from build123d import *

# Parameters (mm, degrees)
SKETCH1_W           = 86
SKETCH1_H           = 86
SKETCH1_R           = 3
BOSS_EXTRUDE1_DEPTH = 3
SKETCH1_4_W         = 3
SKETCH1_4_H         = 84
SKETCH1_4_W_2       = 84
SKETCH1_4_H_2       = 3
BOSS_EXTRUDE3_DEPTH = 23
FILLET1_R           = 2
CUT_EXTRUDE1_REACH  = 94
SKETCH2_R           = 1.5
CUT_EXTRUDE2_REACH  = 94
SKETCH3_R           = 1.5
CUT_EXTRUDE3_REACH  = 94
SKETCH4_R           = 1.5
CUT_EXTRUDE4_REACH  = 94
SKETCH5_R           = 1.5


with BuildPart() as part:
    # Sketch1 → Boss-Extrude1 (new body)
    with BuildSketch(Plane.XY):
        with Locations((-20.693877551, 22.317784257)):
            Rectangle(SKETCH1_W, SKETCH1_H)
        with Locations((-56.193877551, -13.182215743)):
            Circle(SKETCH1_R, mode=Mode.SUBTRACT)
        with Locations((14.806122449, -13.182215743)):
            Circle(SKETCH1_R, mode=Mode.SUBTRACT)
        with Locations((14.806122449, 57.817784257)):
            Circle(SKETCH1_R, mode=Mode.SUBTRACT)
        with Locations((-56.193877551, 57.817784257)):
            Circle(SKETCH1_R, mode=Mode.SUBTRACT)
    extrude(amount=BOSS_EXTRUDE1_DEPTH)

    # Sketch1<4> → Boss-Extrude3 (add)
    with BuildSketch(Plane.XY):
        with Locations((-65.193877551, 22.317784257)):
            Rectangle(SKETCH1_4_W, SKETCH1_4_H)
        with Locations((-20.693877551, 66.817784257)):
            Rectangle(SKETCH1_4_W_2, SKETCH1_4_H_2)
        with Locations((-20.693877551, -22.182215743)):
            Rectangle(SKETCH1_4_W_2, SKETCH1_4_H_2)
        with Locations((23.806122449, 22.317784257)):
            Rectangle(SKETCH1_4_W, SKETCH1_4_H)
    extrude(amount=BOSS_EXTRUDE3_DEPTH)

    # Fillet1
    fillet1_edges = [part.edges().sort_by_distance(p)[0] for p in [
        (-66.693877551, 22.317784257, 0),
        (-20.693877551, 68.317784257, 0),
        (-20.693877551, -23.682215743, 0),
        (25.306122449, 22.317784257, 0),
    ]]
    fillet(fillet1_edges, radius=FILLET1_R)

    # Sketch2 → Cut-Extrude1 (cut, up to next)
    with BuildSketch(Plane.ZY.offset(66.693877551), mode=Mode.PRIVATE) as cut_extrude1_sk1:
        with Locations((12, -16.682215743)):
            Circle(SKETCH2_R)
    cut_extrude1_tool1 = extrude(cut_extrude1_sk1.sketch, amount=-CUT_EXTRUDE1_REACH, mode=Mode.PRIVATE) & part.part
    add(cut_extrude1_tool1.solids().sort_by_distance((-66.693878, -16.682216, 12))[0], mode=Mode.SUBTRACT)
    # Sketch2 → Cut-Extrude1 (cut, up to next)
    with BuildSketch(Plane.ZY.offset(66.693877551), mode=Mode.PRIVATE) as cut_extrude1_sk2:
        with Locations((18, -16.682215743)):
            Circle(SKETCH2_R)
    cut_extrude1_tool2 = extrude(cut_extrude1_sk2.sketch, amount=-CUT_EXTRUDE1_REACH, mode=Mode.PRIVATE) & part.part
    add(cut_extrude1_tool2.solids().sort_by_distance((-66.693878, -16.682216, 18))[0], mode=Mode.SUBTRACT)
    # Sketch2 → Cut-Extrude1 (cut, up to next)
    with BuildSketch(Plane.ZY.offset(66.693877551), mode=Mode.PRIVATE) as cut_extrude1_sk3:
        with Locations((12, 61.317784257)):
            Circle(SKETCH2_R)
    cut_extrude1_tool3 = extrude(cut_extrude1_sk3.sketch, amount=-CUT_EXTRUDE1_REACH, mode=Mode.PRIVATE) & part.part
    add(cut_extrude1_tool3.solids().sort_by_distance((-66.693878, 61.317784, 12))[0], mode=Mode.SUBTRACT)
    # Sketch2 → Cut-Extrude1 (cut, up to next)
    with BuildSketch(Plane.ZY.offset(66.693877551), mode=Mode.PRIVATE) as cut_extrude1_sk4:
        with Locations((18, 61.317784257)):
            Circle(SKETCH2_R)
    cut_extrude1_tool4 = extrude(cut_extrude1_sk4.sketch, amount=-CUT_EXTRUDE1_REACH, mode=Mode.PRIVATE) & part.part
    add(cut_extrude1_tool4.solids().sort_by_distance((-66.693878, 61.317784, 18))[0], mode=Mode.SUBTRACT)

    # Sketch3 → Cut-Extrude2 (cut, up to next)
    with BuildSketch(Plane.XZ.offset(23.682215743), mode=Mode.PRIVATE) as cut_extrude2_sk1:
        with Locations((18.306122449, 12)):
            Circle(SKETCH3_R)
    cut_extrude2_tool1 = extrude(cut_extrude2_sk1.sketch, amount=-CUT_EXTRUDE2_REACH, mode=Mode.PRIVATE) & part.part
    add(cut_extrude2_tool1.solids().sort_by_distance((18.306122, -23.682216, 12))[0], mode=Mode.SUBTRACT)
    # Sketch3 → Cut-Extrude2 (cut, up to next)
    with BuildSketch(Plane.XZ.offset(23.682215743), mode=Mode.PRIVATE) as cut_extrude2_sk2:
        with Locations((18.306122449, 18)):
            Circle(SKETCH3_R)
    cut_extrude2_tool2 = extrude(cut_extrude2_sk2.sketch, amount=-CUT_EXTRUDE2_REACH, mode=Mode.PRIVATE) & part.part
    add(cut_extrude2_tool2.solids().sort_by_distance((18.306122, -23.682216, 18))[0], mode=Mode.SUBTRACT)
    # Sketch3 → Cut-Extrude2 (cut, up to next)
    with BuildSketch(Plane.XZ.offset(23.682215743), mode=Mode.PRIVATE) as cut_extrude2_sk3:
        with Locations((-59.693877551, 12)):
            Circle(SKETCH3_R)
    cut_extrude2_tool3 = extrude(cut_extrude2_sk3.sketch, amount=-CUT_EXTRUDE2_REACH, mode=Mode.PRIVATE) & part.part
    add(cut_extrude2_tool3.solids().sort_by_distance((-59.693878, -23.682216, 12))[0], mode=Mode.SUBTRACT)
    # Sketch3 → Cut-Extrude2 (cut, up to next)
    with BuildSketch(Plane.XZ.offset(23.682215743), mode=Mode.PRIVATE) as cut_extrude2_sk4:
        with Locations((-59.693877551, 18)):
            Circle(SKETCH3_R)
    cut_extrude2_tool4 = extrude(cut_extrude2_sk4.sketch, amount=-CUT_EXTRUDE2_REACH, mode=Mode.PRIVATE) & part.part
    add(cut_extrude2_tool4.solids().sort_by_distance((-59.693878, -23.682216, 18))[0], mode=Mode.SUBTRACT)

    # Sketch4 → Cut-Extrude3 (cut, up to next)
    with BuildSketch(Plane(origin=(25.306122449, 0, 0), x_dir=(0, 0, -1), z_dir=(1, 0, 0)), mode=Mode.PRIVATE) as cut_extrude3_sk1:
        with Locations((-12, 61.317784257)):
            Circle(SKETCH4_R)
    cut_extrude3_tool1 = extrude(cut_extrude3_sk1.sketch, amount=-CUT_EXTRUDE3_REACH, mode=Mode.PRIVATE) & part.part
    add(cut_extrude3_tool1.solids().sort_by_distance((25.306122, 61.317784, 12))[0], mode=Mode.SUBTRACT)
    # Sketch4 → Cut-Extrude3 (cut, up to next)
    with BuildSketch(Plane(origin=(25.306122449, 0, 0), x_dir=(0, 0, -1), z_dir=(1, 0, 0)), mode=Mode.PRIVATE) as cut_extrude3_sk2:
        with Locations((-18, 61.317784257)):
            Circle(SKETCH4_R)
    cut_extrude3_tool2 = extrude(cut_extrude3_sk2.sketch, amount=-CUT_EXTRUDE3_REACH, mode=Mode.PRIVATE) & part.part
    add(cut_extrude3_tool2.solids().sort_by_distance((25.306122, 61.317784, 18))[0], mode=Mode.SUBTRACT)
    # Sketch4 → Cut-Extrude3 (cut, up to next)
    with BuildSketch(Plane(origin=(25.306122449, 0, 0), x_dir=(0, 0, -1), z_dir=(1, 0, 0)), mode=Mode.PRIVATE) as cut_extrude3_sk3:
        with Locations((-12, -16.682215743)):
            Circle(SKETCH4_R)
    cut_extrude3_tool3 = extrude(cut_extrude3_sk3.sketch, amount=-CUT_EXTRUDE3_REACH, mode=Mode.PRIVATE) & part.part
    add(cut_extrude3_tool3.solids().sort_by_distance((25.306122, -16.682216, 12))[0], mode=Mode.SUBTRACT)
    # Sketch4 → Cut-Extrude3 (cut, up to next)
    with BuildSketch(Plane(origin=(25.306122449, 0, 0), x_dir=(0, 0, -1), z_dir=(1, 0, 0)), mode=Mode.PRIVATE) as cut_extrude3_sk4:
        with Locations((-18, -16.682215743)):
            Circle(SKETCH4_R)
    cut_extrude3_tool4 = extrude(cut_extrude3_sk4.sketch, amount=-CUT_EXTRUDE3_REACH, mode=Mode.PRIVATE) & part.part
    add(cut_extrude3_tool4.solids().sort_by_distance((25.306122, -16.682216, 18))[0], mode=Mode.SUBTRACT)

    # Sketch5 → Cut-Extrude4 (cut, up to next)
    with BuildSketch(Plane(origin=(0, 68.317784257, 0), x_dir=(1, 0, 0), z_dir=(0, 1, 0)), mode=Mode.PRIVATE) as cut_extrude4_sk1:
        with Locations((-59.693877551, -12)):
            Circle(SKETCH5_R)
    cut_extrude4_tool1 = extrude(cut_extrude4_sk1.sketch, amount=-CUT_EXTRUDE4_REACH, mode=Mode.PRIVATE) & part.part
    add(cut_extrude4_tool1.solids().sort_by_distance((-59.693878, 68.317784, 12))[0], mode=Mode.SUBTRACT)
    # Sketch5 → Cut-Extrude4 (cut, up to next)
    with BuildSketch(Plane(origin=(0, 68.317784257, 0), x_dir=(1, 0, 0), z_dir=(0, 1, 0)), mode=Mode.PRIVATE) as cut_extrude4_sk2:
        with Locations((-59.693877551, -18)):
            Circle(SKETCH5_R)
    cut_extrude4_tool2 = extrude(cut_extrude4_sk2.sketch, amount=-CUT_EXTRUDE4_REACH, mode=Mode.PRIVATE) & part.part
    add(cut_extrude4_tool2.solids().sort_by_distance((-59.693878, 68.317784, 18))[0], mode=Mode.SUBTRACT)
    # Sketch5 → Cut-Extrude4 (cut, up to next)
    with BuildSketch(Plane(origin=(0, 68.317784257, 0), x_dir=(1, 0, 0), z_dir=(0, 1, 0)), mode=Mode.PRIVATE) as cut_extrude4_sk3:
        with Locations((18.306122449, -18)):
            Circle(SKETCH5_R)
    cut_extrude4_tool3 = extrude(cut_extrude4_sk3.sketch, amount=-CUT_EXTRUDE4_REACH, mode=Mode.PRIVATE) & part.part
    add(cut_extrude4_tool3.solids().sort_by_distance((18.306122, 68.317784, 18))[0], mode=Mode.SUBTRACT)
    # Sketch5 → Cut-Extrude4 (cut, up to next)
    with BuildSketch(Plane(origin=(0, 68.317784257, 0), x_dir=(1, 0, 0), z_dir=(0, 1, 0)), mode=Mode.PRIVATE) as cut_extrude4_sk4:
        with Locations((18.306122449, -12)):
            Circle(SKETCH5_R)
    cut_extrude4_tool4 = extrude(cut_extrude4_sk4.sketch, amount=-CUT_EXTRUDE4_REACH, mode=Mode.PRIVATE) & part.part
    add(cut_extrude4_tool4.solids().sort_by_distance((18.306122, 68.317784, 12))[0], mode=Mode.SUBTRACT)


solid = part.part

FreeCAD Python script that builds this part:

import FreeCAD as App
import Part
import Sketcher

V = App.Vector


def edges_at(feature, points):
    """Names of the edges that pass closest to the given points."""
    edges = feature.Shape.Edges
    near = lambda p: min(range(len(edges)), key=lambda i: edges[i].distToShape(Part.Vertex(*p))[0])
    return sorted({f"Edge{near(p) + 1}" for p in points})

doc = App.newDocument("Part")
body = doc.addObject("PartDesign::Body", "Body")

sketch1 = body.newObject("Sketcher::SketchObject", "Sketch")
sketch1.AttachmentSupport = (doc.getObject("XY_Plane"), [""])
sketch1.MapMode = "FlatFace"
sketch1.addGeometry([
    Part.LineSegment(V(-63.7, 65.3, 0), V(-63.7, -20.7, 0)),
    Part.LineSegment(V(-63.7, -20.7, 0), V(22.3, -20.7, 0)),
    Part.LineSegment(V(22.3, -20.7, 0), V(22.3, 65.3, 0)),
    Part.LineSegment(V(22.3, 65.3, 0), V(-63.7, 65.3, 0)),
    Part.Circle(V(-56.2, -13.2, 0), V(0, 0, 1), 3),
    Part.Circle(V(14.8, -13.2, 0), V(0, 0, 1), 3),
    Part.Circle(V(-56.2, 57.8, 0), V(0, 0, 1), 3),
    Part.Circle(V(14.8, 57.8, 0), V(0, 0, 1), 3),
], False)
sketch1.addConstraint([
    Sketcher.Constraint("Coincident", 0, 2, 1, 1),
    Sketcher.Constraint("Coincident", 1, 2, 2, 1),
    Sketcher.Constraint("Coincident", 2, 2, 3, 1),
    Sketcher.Constraint("Coincident", 3, 2, 0, 1),
    Sketcher.Constraint("Vertical", 0),
    Sketcher.Constraint("Horizontal", 1),
    Sketcher.Constraint("Vertical", 2),
    Sketcher.Constraint("Horizontal", 3),
    Sketcher.Constraint("Equal", 4, 5),
    Sketcher.Constraint("Equal", 5, 6),
    Sketcher.Constraint("Equal", 6, 7),
    Sketcher.Constraint("Horizontal", 4, 3, 5, 3),
    Sketcher.Constraint("Horizontal", 6, 3, 7, 3),
    Sketcher.Constraint("Vertical", 4, 3, 6, 3),
    Sketcher.Constraint("Vertical", 5, 3, 7, 3),
    Sketcher.Constraint("Equal", 3, 0),
    Sketcher.Constraint("Diameter", 4, 6.0),
    Sketcher.Constraint("DistanceX", 1, 1, 1, 2, 86.0),
    Sketcher.Constraint("DistanceX", 4, 3, 5, 3, 71.0),
    Sketcher.Constraint("DistanceY", 4, 3, 6, 3, 71.0),
    Sketcher.Constraint("DistanceX", 0, 2, 4, 3, 7.5),
    Sketcher.Constraint("DistanceY", 0, 2, 4, 3, 7.5),
    Sketcher.Constraint("DistanceX", 4, 3, -1, 1, 56.193878),
    Sketcher.Constraint("DistanceY", 4, 3, -1, 1, 13.182216),
])
pad1 = body.newObject("PartDesign::Pad", "Pad")
pad1.Profile = sketch1
pad1.Length = 3

sketch2 = body.newObject("Sketcher::SketchObject", "Sketch001")
sketch2.AttachmentSupport = (doc.getObject("XY_Plane"), [""])
sketch2.MapMode = "FlatFace"
sketch2.addGeometry([
    Part.LineSegment(V(-66.7, 64.3, 0), V(-66.7, -19.7, 0)),
    Part.LineSegment(V(-66.7, -19.7, 0), V(-63.7, -19.7, 0)),
    Part.LineSegment(V(-63.7, -19.7, 0), V(-63.7, 64.3, 0)),
    Part.LineSegment(V(-63.7, 64.3, 0), V(-66.7, 64.3, 0)),
    Part.LineSegment(V(-62.7, 68.3, 0), V(-62.7, 65.3, 0)),
    Part.LineSegment(V(-62.7, 65.3, 0), V(21.3, 65.3, 0)),
    Part.LineSegment(V(21.3, 65.3, 0), V(21.3, 68.3, 0)),
    Part.LineSegment(V(21.3, 68.3, 0), V(-62.7, 68.3, 0)),
    Part.LineSegment(V(-62.7, -20.7, 0), V(-62.7, -23.7, 0)),
    Part.LineSegment(V(-62.7, -23.7, 0), V(21.3, -23.7, 0)),
    Part.LineSegment(V(21.3, -23.7, 0), V(21.3, -20.7, 0)),
    Part.LineSegment(V(21.3, -20.7, 0), V(-62.7, -20.7, 0)),
    Part.LineSegment(V(22.3, 64.3, 0), V(22.3, -19.7, 0)),
    Part.LineSegment(V(22.3, -19.7, 0), V(25.3, -19.7, 0)),
    Part.LineSegment(V(25.3, -19.7, 0), V(25.3, 64.3, 0)),
    Part.LineSegment(V(25.3, 64.3, 0), V(22.3, 64.3, 0)),
], False)
sketch2.addConstraint([
    Sketcher.Constraint("Coincident", 0, 2, 1, 1),
    Sketcher.Constraint("Coincident", 1, 2, 2, 1),
    Sketcher.Constraint("Coincident", 2, 2, 3, 1),
    Sketcher.Constraint("Coincident", 3, 2, 0, 1),
    Sketcher.Constraint("Coincident", 4, 2, 5, 1),
    Sketcher.Constraint("Coincident", 5, 2, 6, 1),
    Sketcher.Constraint("Coincident", 6, 2, 7, 1),
    Sketcher.Constraint("Coincident", 7, 2, 4, 1),
    Sketcher.Constraint("Coincident", 8, 2, 9, 1),
    Sketcher.Constraint("Coincident", 9, 2, 10, 1),
    Sketcher.Constraint("Coincident", 10, 2, 11, 1),
    Sketcher.Constraint("Coincident", 11, 2, 8, 1),
    Sketcher.Constraint("Coincident", 12, 2, 13, 1),
    Sketcher.Constraint("Coincident", 13, 2, 14, 1),
    Sketcher.Constraint("Coincident", 14, 2, 15, 1),
    Sketcher.Constraint("Coincident", 15, 2, 12, 1),
    Sketcher.Constraint("Vertical", 0),
    Sketcher.Constraint("Horizontal", 1),
    Sketcher.Constraint("Vertical", 2),
    Sketcher.Constraint("Horizontal", 3),
    Sketcher.Constraint("Vertical", 4),
    Sketcher.Constraint("Horizontal", 5),
    Sketcher.Constraint("Vertical", 6),
    Sketcher.Constraint("Horizontal", 7),
    Sketcher.Constraint("Vertical", 8),
    Sketcher.Constraint("Horizontal", 9),
    Sketcher.Constraint("Vertical", 10),
    Sketcher.Constraint("Horizontal", 11),
    Sketcher.Constraint("Vertical", 12),
    Sketcher.Constraint("Horizontal", 13),
    Sketcher.Constraint("Vertical", 14),
    Sketcher.Constraint("Horizontal", 15),
    Sketcher.Constraint("Horizontal", 1, 2, 12, 2),
    Sketcher.Constraint("Horizontal", 3, 2, 14, 2),
    Sketcher.Constraint("Vertical", 7, 2, 8, 2),
    Sketcher.Constraint("Vertical", 6, 2, 9, 2),
    Sketcher.Constraint("Equal", 3, 13),
    Sketcher.Constraint("Equal", 11, 0),
    Sketcher.Constraint("Equal", 15, 4),
    Sketcher.Constraint("Equal", 6, 8),
    Sketcher.Constraint("DistanceX", 1, 1, 1, 2, 3.0),
    Sketcher.Constraint("DistanceX", 5, 1, 5, 2, 84.0),
    Sketcher.Constraint("DistanceX", 2, 2, 4, 2, 1.0),
    Sketcher.Constraint("DistanceY", 2, 2, 4, 2, 1.0),
    Sketcher.Constraint("DistanceY", 8, 2, 1, 2, 4.0),
    Sketcher.Constraint("DistanceX", 10, 2, 12, 2, 1.0),
    Sketcher.Constraint("DistanceX", 0, 2, -1, 1, 66.693878),
    Sketcher.Constraint("DistanceY", 0, 2, -1, 1, 19.682216),
])
pad2 = body.newObject("PartDesign::Pad", "Pad001")
pad2.Profile = sketch2
pad2.Length = 23
doc.recompute()

fillet = body.newObject("PartDesign::Fillet", "Fillet")
fillet.Base = (pad2, edges_at(pad2, [
    (-66.694, 22.318, 0),
    (-20.694, 68.318, 0),
    (-20.694, -23.682, 0),
    (25.306, 22.318, 0),
]))
fillet.Radius = 2

sketch3 = body.newObject("Sketcher::SketchObject", "Sketch002")
sketch3.AttachmentSupport = (doc.getObject("YZ_Plane"), [""])
sketch3.MapMode = "FlatFace"
sketch3.AttachmentOffset = App.Placement(V(0, 0, -66.693878), App.Rotation())
sketch3.addGeometry(Part.Circle(V(-16.7, 12, 0), V(0, 0, 1), 1.5), False)
sketch3.addConstraint([
    Sketcher.Constraint("Diameter", 0, 3.0),
    Sketcher.Constraint("DistanceY", -1, 1, 0, 3, 12.0),
    Sketcher.Constraint("DistanceX", 0, 3, -1, 1, 16.682216),
])
pocket1 = body.newObject("PartDesign::Pocket", "Pocket")
pocket1.Profile = sketch3
pocket1.Type = "UpToFirst"
pocket1.Reversed = True

sketch4 = body.newObject("Sketcher::SketchObject", "Sketch003")
sketch4.AttachmentSupport = (doc.getObject("YZ_Plane"), [""])
sketch4.MapMode = "FlatFace"
sketch4.AttachmentOffset = App.Placement(V(0, 0, -66.693878), App.Rotation())
sketch4.addGeometry(Part.Circle(V(-16.7, 18, 0), V(0, 0, 1), 1.5), False)
sketch4.addConstraint([
    Sketcher.Constraint("Diameter", 0, 3.0),
    Sketcher.Constraint("DistanceY", -1, 1, 0, 3, 18.0),
    Sketcher.Constraint("DistanceX", 0, 3, -1, 1, 16.682216),
])
pocket2 = body.newObject("PartDesign::Pocket", "Pocket001")
pocket2.Profile = sketch4
pocket2.Type = "UpToFirst"
pocket2.Reversed = True

sketch5 = body.newObject("Sketcher::SketchObject", "Sketch004")
sketch5.AttachmentSupport = (doc.getObject("YZ_Plane"), [""])
sketch5.MapMode = "FlatFace"
sketch5.AttachmentOffset = App.Placement(V(0, 0, -66.693878), App.Rotation())
sketch5.addGeometry(Part.Circle(V(61.3, 12, 0), V(0, 0, 1), 1.5), False)
sketch5.addConstraint([
    Sketcher.Constraint("Diameter", 0, 3.0),
    Sketcher.Constraint("DistanceY", -1, 1, 0, 3, 12.0),
    Sketcher.Constraint("DistanceX", -1, 1, 0, 3, 61.317784),
])
pocket3 = body.newObject("PartDesign::Pocket", "Pocket002")
pocket3.Profile = sketch5
pocket3.Type = "UpToFirst"
pocket3.Reversed = True

sketch6 = body.newObject("Sketcher::SketchObject", "Sketch005")
sketch6.AttachmentSupport = (doc.getObject("YZ_Plane"), [""])
sketch6.MapMode = "FlatFace"
sketch6.AttachmentOffset = App.Placement(V(0, 0, -66.693878), App.Rotation())
sketch6.addGeometry(Part.Circle(V(61.3, 18, 0), V(0, 0, 1), 1.5), False)
sketch6.addConstraint([
    Sketcher.Constraint("Diameter", 0, 3.0),
    Sketcher.Constraint("DistanceY", -1, 1, 0, 3, 18.0),
    Sketcher.Constraint("DistanceX", -1, 1, 0, 3, 61.317784),
])
pocket4 = body.newObject("PartDesign::Pocket", "Pocket003")
pocket4.Profile = sketch6
pocket4.Type = "UpToFirst"
pocket4.Reversed = True

sketch7 = body.newObject("Sketcher::SketchObject", "Sketch006")
sketch7.AttachmentSupport = (doc.getObject("XZ_Plane"), [""])
sketch7.MapMode = "FlatFace"
sketch7.AttachmentOffset = App.Placement(V(0, 0, 23.682216), App.Rotation())
sketch7.addGeometry(Part.Circle(V(18.3, 12, 0), V(0, 0, 1), 1.5), False)
sketch7.addConstraint([
    Sketcher.Constraint("Diameter", 0, 3.0),
    Sketcher.Constraint("DistanceY", -1, 1, 0, 3, 12.0),
    Sketcher.Constraint("DistanceX", -1, 1, 0, 3, 18.306122),
])
pocket5 = body.newObject("PartDesign::Pocket", "Pocket004")
pocket5.Profile = sketch7
pocket5.Type = "UpToFirst"

sketch8 = body.newObject("Sketcher::SketchObject", "Sketch007")
sketch8.AttachmentSupport = (doc.getObject("XZ_Plane"), [""])
sketch8.MapMode = "FlatFace"
sketch8.AttachmentOffset = App.Placement(V(0, 0, 23.682216), App.Rotation())
sketch8.addGeometry(Part.Circle(V(18.3, 18, 0), V(0, 0, 1), 1.5), False)
sketch8.addConstraint([
    Sketcher.Constraint("Diameter", 0, 3.0),
    Sketcher.Constraint("DistanceY", -1, 1, 0, 3, 18.0),
    Sketcher.Constraint("DistanceX", -1, 1, 0, 3, 18.306122),
])
pocket6 = body.newObject("PartDesign::Pocket", "Pocket005")
pocket6.Profile = sketch8
pocket6.Type = "UpToFirst"

sketch9 = body.newObject("Sketcher::SketchObject", "Sketch008")
sketch9.AttachmentSupport = (doc.getObject("XZ_Plane"), [""])
sketch9.MapMode = "FlatFace"
sketch9.AttachmentOffset = App.Placement(V(0, 0, 23.682216), App.Rotation())
sketch9.addGeometry(Part.Circle(V(-59.7, 12, 0), V(0, 0, 1), 1.5), False)
sketch9.addConstraint([
    Sketcher.Constraint("Diameter", 0, 3.0),
    Sketcher.Constraint("DistanceY", -1, 1, 0, 3, 12.0),
    Sketcher.Constraint("DistanceX", 0, 3, -1, 1, 59.693878),
])
pocket7 = body.newObject("PartDesign::Pocket", "Pocket006")
pocket7.Profile = sketch9
pocket7.Type = "UpToFirst"

sketch10 = body.newObject("Sketcher::SketchObject", "Sketch009")
sketch10.AttachmentSupport = (doc.getObject("XZ_Plane"), [""])
sketch10.MapMode = "FlatFace"
sketch10.AttachmentOffset = App.Placement(V(0, 0, 23.682216), App.Rotation())
sketch10.addGeometry(Part.Circle(V(-59.7, 18, 0), V(0, 0, 1), 1.5), False)
sketch10.addConstraint([
    Sketcher.Constraint("Diameter", 0, 3.0),
    Sketcher.Constraint("DistanceY", -1, 1, 0, 3, 18.0),
    Sketcher.Constraint("DistanceX", 0, 3, -1, 1, 59.693878),
])
pocket8 = body.newObject("PartDesign::Pocket", "Pocket007")
pocket8.Profile = sketch10
pocket8.Type = "UpToFirst"

sketch11 = body.newObject("Sketcher::SketchObject", "Sketch010")
sketch11.AttachmentSupport = (doc.getObject("YZ_Plane"), [""])
sketch11.MapMode = "FlatFace"
sketch11.AttachmentOffset = App.Placement(V(0, 0, 25.306122), App.Rotation())
sketch11.addGeometry(Part.Circle(V(61.3, 12, 0), V(0, 0, 1), 1.5), False)
sketch11.addConstraint([
    Sketcher.Constraint("Diameter", 0, 3.0),
    Sketcher.Constraint("DistanceY", -1, 1, 0, 3, 12.0),
    Sketcher.Constraint("DistanceX", -1, 1, 0, 3, 61.317784),
])
pocket9 = body.newObject("PartDesign::Pocket", "Pocket008")
pocket9.Profile = sketch11
pocket9.Type = "UpToFirst"

sketch12 = body.newObject("Sketcher::SketchObject", "Sketch011")
sketch12.AttachmentSupport = (doc.getObject("YZ_Plane"), [""])
sketch12.MapMode = "FlatFace"
sketch12.AttachmentOffset = App.Placement(V(0, 0, 25.306122), App.Rotation())
sketch12.addGeometry(Part.Circle(V(61.3, 18, 0), V(0, 0, 1), 1.5), False)
sketch12.addConstraint([
    Sketcher.Constraint("Diameter", 0, 3.0),
    Sketcher.Constraint("DistanceY", -1, 1, 0, 3, 18.0),
    Sketcher.Constraint("DistanceX", -1, 1, 0, 3, 61.317784),
])
pocket10 = body.newObject("PartDesign::Pocket", "Pocket009")
pocket10.Profile = sketch12
pocket10.Type = "UpToFirst"

sketch13 = body.newObject("Sketcher::SketchObject", "Sketch012")
sketch13.AttachmentSupport = (doc.getObject("YZ_Plane"), [""])
sketch13.MapMode = "FlatFace"
sketch13.AttachmentOffset = App.Placement(V(0, 0, 25.306122), App.Rotation())
sketch13.addGeometry(Part.Circle(V(-16.7, 12, 0), V(0, 0, 1), 1.5), False)
sketch13.addConstraint([
    Sketcher.Constraint("Diameter", 0, 3.0),
    Sketcher.Constraint("DistanceY", -1, 1, 0, 3, 12.0),
    Sketcher.Constraint("DistanceX", 0, 3, -1, 1, 16.682216),
])
pocket11 = body.newObject("PartDesign::Pocket", "Pocket010")
pocket11.Profile = sketch13
pocket11.Type = "UpToFirst"

sketch14 = body.newObject("Sketcher::SketchObject", "Sketch013")
sketch14.AttachmentSupport = (doc.getObject("YZ_Plane"), [""])
sketch14.MapMode = "FlatFace"
sketch14.AttachmentOffset = App.Placement(V(0, 0, 25.306122), App.Rotation())
sketch14.addGeometry(Part.Circle(V(-16.7, 18, 0), V(0, 0, 1), 1.5), False)
sketch14.addConstraint([
    Sketcher.Constraint("Diameter", 0, 3.0),
    Sketcher.Constraint("DistanceY", -1, 1, 0, 3, 18.0),
    Sketcher.Constraint("DistanceX", 0, 3, -1, 1, 16.682216),
])
pocket12 = body.newObject("PartDesign::Pocket", "Pocket011")
pocket12.Profile = sketch14
pocket12.Type = "UpToFirst"

sketch15 = body.newObject("Sketcher::SketchObject", "Sketch014")
sketch15.AttachmentSupport = (doc.getObject("XZ_Plane"), [""])
sketch15.MapMode = "FlatFace"
sketch15.AttachmentOffset = App.Placement(V(0, 0, -68.317784), App.Rotation())
sketch15.addGeometry(Part.Circle(V(-59.7, 12, 0), V(0, 0, 1), 1.5), False)
sketch15.addConstraint([
    Sketcher.Constraint("Diameter", 0, 3.0),
    Sketcher.Constraint("DistanceY", -1, 1, 0, 3, 12.0),
    Sketcher.Constraint("DistanceX", 0, 3, -1, 1, 59.693878),
])
pocket13 = body.newObject("PartDesign::Pocket", "Pocket012")
pocket13.Profile = sketch15
pocket13.Type = "UpToFirst"
pocket13.Reversed = True

sketch16 = body.newObject("Sketcher::SketchObject", "Sketch015")
sketch16.AttachmentSupport = (doc.getObject("XZ_Plane"), [""])
sketch16.MapMode = "FlatFace"
sketch16.AttachmentOffset = App.Placement(V(0, 0, -68.317784), App.Rotation())
sketch16.addGeometry(Part.Circle(V(-59.7, 18, 0), V(0, 0, 1), 1.5), False)
sketch16.addConstraint([
    Sketcher.Constraint("Diameter", 0, 3.0),
    Sketcher.Constraint("DistanceY", -1, 1, 0, 3, 18.0),
    Sketcher.Constraint("DistanceX", 0, 3, -1, 1, 59.693878),
])
pocket14 = body.newObject("PartDesign::Pocket", "Pocket013")
pocket14.Profile = sketch16
pocket14.Type = "UpToFirst"
pocket14.Reversed = True

sketch17 = body.newObject("Sketcher::SketchObject", "Sketch016")
sketch17.AttachmentSupport = (doc.getObject("XZ_Plane"), [""])
sketch17.MapMode = "FlatFace"
sketch17.AttachmentOffset = App.Placement(V(0, 0, -68.317784), App.Rotation())
sketch17.addGeometry(Part.Circle(V(18.3, 18, 0), V(0, 0, 1), 1.5), False)
sketch17.addConstraint([
    Sketcher.Constraint("Diameter", 0, 3.0),
    Sketcher.Constraint("DistanceY", -1, 1, 0, 3, 18.0),
    Sketcher.Constraint("DistanceX", -1, 1, 0, 3, 18.306122),
])
pocket15 = body.newObject("PartDesign::Pocket", "Pocket014")
pocket15.Profile = sketch17
pocket15.Type = "UpToFirst"
pocket15.Reversed = True

sketch18 = body.newObject("Sketcher::SketchObject", "Sketch017")
sketch18.AttachmentSupport = (doc.getObject("XZ_Plane"), [""])
sketch18.MapMode = "FlatFace"
sketch18.AttachmentOffset = App.Placement(V(0, 0, -68.317784), App.Rotation())
sketch18.addGeometry(Part.Circle(V(18.3, 12, 0), V(0, 0, 1), 1.5), False)
sketch18.addConstraint([
    Sketcher.Constraint("Diameter", 0, 3.0),
    Sketcher.Constraint("DistanceY", -1, 1, 0, 3, 12.0),
    Sketcher.Constraint("DistanceX", -1, 1, 0, 3, 18.306122),
])
pocket16 = body.newObject("PartDesign::Pocket", "Pocket015")
pocket16.Profile = sketch18
pocket16.Type = "UpToFirst"
pocket16.Reversed = True

doc.recompute()
